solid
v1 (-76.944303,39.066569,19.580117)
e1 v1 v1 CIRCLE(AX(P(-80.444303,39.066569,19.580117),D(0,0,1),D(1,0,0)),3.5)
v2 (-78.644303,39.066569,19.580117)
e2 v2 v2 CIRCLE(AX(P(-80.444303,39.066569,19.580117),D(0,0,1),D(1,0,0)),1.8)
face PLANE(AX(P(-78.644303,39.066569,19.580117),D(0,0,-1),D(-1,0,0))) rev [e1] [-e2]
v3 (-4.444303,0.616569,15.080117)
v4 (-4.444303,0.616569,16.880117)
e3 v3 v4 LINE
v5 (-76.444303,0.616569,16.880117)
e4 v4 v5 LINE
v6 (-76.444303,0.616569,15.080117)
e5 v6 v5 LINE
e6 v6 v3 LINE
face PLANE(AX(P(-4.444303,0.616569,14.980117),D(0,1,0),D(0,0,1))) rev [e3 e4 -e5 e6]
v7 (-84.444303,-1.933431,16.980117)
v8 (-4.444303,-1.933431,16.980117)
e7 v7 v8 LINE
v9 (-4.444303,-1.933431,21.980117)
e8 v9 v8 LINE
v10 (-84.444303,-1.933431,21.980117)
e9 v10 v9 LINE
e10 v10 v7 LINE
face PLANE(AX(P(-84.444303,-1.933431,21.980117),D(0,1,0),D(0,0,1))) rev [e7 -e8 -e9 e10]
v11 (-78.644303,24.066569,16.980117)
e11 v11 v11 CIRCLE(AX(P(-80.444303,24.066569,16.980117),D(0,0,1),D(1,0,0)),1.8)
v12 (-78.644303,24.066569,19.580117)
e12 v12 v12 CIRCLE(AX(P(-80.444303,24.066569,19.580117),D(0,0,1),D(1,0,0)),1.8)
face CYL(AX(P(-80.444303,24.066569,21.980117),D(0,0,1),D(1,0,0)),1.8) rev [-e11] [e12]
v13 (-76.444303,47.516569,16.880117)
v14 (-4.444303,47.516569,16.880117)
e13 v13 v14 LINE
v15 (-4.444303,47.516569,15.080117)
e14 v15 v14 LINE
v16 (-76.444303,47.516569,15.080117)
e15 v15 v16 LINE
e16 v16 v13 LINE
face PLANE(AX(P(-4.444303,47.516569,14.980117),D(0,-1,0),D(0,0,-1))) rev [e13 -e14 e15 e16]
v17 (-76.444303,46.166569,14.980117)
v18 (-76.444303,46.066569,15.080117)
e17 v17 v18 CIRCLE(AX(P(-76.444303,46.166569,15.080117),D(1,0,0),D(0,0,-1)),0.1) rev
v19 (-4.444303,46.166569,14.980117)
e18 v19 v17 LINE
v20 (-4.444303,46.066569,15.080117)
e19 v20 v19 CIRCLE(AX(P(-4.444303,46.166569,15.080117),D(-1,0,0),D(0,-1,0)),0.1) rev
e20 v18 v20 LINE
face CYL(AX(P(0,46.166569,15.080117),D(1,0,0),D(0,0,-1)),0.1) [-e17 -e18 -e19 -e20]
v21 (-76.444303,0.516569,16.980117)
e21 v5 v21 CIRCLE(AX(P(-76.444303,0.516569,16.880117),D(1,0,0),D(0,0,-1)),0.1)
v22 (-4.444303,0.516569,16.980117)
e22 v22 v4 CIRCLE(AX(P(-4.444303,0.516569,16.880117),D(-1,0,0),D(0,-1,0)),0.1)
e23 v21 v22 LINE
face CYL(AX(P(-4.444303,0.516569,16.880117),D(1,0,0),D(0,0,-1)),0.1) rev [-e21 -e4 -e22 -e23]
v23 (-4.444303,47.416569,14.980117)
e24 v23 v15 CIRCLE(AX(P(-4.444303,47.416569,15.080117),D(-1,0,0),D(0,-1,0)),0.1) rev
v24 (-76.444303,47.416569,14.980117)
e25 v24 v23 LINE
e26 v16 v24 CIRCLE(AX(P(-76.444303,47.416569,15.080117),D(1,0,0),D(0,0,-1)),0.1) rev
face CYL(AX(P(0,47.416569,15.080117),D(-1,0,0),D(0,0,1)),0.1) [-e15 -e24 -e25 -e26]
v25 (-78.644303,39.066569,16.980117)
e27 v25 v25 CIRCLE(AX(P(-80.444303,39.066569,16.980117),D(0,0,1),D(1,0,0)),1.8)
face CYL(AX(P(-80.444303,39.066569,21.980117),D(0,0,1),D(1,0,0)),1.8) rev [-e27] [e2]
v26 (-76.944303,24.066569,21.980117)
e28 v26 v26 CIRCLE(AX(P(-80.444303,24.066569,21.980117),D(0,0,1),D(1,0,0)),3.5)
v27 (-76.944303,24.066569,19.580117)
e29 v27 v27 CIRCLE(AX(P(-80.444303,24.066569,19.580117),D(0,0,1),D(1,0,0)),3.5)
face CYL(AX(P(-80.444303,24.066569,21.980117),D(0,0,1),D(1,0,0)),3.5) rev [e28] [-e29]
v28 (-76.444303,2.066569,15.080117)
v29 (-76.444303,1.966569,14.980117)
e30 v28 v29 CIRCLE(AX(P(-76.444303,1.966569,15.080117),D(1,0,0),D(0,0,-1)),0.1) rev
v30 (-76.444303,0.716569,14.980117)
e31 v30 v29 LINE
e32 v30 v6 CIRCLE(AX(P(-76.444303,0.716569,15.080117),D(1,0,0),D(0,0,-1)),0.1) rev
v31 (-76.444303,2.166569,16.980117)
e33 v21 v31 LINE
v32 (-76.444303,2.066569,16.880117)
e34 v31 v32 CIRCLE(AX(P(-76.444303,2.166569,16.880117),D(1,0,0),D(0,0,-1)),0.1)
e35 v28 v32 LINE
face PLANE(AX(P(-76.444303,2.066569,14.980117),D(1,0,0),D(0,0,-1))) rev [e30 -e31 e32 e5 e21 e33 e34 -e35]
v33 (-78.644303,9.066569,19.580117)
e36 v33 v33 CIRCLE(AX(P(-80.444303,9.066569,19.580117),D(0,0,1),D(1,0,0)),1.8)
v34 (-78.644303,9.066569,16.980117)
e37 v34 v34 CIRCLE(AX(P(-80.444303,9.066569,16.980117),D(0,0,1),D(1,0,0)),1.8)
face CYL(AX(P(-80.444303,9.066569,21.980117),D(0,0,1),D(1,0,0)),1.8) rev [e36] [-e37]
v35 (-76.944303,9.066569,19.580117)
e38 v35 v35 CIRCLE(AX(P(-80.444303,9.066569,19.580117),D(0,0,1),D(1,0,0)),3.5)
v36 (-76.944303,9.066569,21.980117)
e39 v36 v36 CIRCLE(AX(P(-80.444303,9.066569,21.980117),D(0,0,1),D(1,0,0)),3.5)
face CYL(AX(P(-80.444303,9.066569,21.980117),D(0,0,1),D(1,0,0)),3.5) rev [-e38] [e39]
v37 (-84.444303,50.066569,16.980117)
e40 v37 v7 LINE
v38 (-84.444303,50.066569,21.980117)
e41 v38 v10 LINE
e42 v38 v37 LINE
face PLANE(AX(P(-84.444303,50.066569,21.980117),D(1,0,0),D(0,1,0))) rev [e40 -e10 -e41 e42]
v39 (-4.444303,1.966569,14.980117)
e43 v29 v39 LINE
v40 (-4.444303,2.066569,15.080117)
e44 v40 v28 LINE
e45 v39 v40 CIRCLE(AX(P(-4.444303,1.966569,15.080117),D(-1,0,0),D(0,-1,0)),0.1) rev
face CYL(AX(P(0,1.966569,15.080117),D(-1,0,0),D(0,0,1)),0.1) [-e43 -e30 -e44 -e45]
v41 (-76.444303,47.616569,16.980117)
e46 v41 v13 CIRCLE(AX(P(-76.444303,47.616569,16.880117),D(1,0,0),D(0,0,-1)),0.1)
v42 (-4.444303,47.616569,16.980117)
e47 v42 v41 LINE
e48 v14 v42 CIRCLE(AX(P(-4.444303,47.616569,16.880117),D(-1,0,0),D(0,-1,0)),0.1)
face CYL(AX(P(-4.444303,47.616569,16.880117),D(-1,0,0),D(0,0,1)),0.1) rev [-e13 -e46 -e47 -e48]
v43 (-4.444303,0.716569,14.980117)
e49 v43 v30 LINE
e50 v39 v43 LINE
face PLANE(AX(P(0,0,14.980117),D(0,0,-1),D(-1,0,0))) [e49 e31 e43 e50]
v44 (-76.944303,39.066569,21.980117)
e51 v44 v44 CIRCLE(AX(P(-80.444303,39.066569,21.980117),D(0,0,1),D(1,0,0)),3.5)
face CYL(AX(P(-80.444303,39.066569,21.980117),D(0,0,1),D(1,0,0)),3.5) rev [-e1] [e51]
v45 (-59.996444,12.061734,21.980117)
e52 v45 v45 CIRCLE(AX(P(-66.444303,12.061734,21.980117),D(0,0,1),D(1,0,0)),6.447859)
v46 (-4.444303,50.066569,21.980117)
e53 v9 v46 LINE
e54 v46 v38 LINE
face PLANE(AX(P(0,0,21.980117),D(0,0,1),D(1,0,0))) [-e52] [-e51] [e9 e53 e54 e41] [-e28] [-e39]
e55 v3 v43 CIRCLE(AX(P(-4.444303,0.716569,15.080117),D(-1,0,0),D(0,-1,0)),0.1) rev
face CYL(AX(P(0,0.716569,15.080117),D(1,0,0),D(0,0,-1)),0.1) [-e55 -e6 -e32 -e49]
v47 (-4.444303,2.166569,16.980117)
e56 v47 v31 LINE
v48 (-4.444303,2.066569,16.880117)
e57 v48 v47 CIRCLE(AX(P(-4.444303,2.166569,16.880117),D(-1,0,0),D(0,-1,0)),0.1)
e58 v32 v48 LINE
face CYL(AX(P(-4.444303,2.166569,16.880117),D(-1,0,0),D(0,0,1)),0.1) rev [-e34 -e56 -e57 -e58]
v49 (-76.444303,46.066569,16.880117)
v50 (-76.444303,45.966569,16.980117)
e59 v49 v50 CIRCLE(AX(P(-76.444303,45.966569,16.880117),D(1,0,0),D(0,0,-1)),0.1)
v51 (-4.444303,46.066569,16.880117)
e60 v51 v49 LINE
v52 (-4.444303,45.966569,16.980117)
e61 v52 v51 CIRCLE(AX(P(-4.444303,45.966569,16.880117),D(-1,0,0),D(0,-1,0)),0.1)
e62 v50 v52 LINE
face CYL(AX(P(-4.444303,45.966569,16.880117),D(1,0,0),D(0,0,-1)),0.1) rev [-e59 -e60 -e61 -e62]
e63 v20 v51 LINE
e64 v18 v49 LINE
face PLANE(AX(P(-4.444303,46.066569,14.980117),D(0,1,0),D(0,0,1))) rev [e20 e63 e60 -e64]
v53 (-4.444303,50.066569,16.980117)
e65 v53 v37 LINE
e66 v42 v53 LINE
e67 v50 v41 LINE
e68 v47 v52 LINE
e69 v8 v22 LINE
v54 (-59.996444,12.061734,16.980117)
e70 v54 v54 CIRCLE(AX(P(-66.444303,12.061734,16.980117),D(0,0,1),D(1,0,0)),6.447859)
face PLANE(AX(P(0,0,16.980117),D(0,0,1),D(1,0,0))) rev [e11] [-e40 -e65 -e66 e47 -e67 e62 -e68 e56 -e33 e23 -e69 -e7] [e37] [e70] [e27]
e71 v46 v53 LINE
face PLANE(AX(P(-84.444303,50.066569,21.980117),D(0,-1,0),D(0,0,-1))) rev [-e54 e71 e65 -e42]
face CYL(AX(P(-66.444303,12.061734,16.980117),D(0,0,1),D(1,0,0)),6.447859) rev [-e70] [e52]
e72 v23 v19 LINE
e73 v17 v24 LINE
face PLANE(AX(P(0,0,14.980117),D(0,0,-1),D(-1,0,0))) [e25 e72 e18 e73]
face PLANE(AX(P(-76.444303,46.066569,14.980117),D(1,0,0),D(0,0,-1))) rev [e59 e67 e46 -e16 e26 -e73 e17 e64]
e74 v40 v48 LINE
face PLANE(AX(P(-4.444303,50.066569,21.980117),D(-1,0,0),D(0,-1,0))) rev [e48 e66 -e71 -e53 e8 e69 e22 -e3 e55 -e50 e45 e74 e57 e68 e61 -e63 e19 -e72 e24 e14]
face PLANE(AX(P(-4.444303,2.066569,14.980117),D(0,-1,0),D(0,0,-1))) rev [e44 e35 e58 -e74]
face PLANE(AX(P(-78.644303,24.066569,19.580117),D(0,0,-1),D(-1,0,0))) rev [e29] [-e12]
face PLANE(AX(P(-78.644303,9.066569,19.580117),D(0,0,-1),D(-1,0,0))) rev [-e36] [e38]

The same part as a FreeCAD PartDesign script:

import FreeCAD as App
import Part
import Sketcher

V = App.Vector
Q = App.Units.Quantity


def edges_at(feature, points):
    """Names of the edges that pass closest to the given points."""
    edges = feature.Shape.Edges
    near = lambda p: min(range(len(edges)), key=lambda i: edges[i].distToShape(Part.Vertex(*p))[0])
    return sorted({f"Edge{near(p) + 1}" for p in points})

doc = App.newDocument("Part")
body = doc.addObject("PartDesign::Body", "Body")

# Sketch on XY plane
sketch1 = body.newObject("Sketcher::SketchObject", "Sketch")
sketch1.AttachmentSupport = (doc.getObject("XY_Plane"), [""])
sketch1.MapMode = "FlatFace"
sketch1.AttachmentOffset = App.Placement(V(0, 0, 16.980117), App.Rotation())
sketch1.addGeometry([
    Part.LineSegment(V(-84, 50, 0), V(-84, -2, 0)),
    Part.LineSegment(V(-84, -2, 0), V(-4, -2, 0)),
    Part.LineSegment(V(-4, -2, 0), V(-4, 50, 0)),
    Part.LineSegment(V(-4, 50, 0), V(-84, 50, 0)),
], False)
sketch1.addConstraint([
    Sketcher.Constraint("Coincident", 0, 2, 1, 1),
    Sketcher.Constraint("Coincident", 1, 2, 2, 1),
    Sketcher.Constraint("Coincident", 2, 2, 3, 1),
    Sketcher.Constraint("Coincident", 3, 2, 0, 1),
    Sketcher.Constraint("Vertical", 0),
    Sketcher.Constraint("Horizontal", 1),
    Sketcher.Constraint("Vertical", 2),
    Sketcher.Constraint("Horizontal", 3),
    Sketcher.Constraint("DistanceX", 1, 1, 1, 2, Q("80 mm")),
    Sketcher.Constraint("DistanceY", 0, 2, 0, 1, Q("52 mm")),
    Sketcher.Constraint("DistanceY", 0, 2, -1, 1, Q("1.933431 mm")),
    Sketcher.Constraint("DistanceX", 0, 2, -1, 1, Q("84.444303 mm")),
])
pad1 = body.newObject("PartDesign::Pad", "Pad")
pad1.Profile = sketch1
pad1.Length = 5

# Sketch on XY plane
sketch2 = body.newObject("Sketcher::SketchObject", "Sketch001")
sketch2.AttachmentSupport = (doc.getObject("XY_Plane"), [""])
sketch2.MapMode = "FlatFace"
sketch2.AttachmentOffset = App.Placement(V(0, 0, 21.980117), App.Rotation())
sketch2.addGeometry(Part.Circle(V(-66, 12, 0), V(0, 0, 1), 6), False)
sketch2.addConstraint([
    Sketcher.Constraint("Diameter", 0, Q("12.895719 mm")),
    Sketcher.Constraint("DistanceX", 0, 3, -1, 1, Q("66.444303 mm")),
    Sketcher.Constraint("DistanceY", -1, 1, 0, 3, Q("12.061734 mm")),
])
pocket1 = body.newObject("PartDesign::Pocket", "Pocket")
pocket1.Profile = sketch2
pocket1.Length = 5

# Sketch on XY plane
sketch3 = body.newObject("Sketcher::SketchObject", "Sketch002")
sketch3.AttachmentSupport = (doc.getObject("XY_Plane"), [""])
sketch3.MapMode = "FlatFace"
sketch3.AttachmentOffset = App.Placement(V(0, 0, 21.980117), App.Rotation())
sketch3.addGeometry([
    Part.Circle(V(-80.4, 9.1, 0), V(0, 0, 1), 1.8),
    Part.Circle(V(-80.4, 24.1, 0), V(0, 0, 1), 1.8),
    Part.Circle(V(-80.4, 39.1, 0), V(0, 0, 1), 1.8),
], False)
sketch3.addConstraint([
    Sketcher.Constraint("Equal", 0, 1),
    Sketcher.Constraint("Equal", 1, 2),
    Sketcher.Constraint("Vertical", 0, 3, 1, 3),
    Sketcher.Constraint("Vertical", 1, 3, 2, 3),
    Sketcher.Constraint("Diameter", 0, Q("3.6 mm")),
    Sketcher.Constraint("DistanceY", 0, 3, 1, 3, Q("15 mm")),
    Sketcher.Constraint("DistanceY", 1, 3, 2, 3, Q("15 mm")),
    Sketcher.Constraint("DistanceY", -1, 1, 0, 3, Q("9.066569 mm")),
    Sketcher.Constraint("DistanceX", 0, 3, -1, 1, Q("80.444303 mm")),
])
doc.recompute()
hole = body.newObject("PartDesign::Hole", "Hole")
hole.Profile = sketch3
hole.ThreadType = "None"
hole.Diameter = 3.6
hole.DepthType = "ThroughAll"
hole.HoleCutType = "Counterbore"
hole.HoleCutDiameter = 7
hole.HoleCutDepth = 2.4

# Sketch on XY plane
sketch4 = body.newObject("Sketcher::SketchObject", "Sketch003")
sketch4.AttachmentSupport = (doc.getObject("XY_Plane"), [""])
sketch4.MapMode = "FlatFace"
sketch4.AttachmentOffset = App.Placement(V(0, 0, 16.980117), App.Rotation())
sketch4.addGeometry([
    Part.LineSegment(V(-4.4, 2.1, 0), V(-4.4, 0.6, 0)),  # 0
    Part.LineSegment(V(-4.4, 0.6, 0), V(-76.4, 0.6, 0)),  # 1
    Part.LineSegment(V(-76.4, 0.6, 0), V(-76.4, 2.1, 0)),  # 2
    Part.LineSegment(V(-76.4, 2.1, 0), V(-4.4, 2.1, 0)),  # 3
    Part.LineSegment(V(-4.4, 47.5, 0), V(-4.4, 46.1, 0)),  # 4
    Part.LineSegment(V(-4.4, 46.1, 0), V(-76.4, 46.1, 0)),  # 5
    Part.LineSegment(V(-76.4, 46.1, 0), V(-76.4, 47.5, 0)),  # 6
    Part.LineSegment(V(-76.4, 47.5, 0), V(-4.4, 47.5, 0)),  # 7
], False)
sketch4.addConstraint([
    Sketcher.Constraint("Coincident", 0, 2, 1, 1),
    Sketcher.Constraint("Coincident", 1, 2, 2, 1),
    Sketcher.Constraint("Coincident", 2, 2, 3, 1),
    Sketcher.Constraint("Coincident", 3, 2, 0, 1),
    Sketcher.Constraint("Coincident", 4, 2, 5, 1),
    Sketcher.Constraint("Coincident", 5, 2, 6, 1),
    Sketcher.Constraint("Coincident", 6, 2, 7, 1),
    Sketcher.Constraint("Coincident", 7, 2, 4, 1),
    Sketcher.Constraint("Vertical", 0),
    Sketcher.Constraint("Horizontal", 1),
    Sketcher.Constraint("Vertical", 2),
    Sketcher.Constraint("Horizontal", 3),
    Sketcher.Constraint("Vertical", 4),
    Sketcher.Constraint("Horizontal", 5),
    Sketcher.Constraint("Vertical", 6),
    Sketcher.Constraint("Horizontal", 7),
    Sketcher.Constraint("Vertical", 3, 2, 4, 2),
    Sketcher.Constraint("Vertical", 2, 2, 5, 2),
    Sketcher.Constraint("Equal", 2, 4),
    Sketcher.Constraint("DistanceX", 1, 2, 1, 1, Q("72 mm")),
    Sketcher.Constraint("DistanceY", 3, 2, 4, 2, Q("44 mm")),
    Sketcher.Constraint("DistanceY", 0, 2, 0, 1, Q("1.45 mm")),
    Sketcher.Constraint("DistanceY", -1, 1, 0, 2, Q("0.616569 mm")),
    Sketcher.Constraint("DistanceX", 0, 2, -1, 1, Q("4.444303 mm")),
])
pad2 = body.newObject("PartDesign::Pad", "Pad001")
pad2.Profile = sketch4
pad2.Length = 2
pad2.Reversed = True
doc.recompute()

fillet = body.newObject("PartDesign::Fillet", "Fillet")
fillet.Base = (pad2, edges_at(pad2, [
    (-40.444, 0.617, 16.98),
    (-40.444, 2.067, 16.98),
    (-40.444, 0.617, 14.98),
    (-40.444, 2.067, 14.98),
    (-40.444, 46.067, 16.98),
    (-40.444, 47.517, 16.98),
    (-40.444, 46.067, 14.98),
    (-40.444, 47.517, 14.98),
]))
fillet.Radius = 0.1

doc.recompute()
